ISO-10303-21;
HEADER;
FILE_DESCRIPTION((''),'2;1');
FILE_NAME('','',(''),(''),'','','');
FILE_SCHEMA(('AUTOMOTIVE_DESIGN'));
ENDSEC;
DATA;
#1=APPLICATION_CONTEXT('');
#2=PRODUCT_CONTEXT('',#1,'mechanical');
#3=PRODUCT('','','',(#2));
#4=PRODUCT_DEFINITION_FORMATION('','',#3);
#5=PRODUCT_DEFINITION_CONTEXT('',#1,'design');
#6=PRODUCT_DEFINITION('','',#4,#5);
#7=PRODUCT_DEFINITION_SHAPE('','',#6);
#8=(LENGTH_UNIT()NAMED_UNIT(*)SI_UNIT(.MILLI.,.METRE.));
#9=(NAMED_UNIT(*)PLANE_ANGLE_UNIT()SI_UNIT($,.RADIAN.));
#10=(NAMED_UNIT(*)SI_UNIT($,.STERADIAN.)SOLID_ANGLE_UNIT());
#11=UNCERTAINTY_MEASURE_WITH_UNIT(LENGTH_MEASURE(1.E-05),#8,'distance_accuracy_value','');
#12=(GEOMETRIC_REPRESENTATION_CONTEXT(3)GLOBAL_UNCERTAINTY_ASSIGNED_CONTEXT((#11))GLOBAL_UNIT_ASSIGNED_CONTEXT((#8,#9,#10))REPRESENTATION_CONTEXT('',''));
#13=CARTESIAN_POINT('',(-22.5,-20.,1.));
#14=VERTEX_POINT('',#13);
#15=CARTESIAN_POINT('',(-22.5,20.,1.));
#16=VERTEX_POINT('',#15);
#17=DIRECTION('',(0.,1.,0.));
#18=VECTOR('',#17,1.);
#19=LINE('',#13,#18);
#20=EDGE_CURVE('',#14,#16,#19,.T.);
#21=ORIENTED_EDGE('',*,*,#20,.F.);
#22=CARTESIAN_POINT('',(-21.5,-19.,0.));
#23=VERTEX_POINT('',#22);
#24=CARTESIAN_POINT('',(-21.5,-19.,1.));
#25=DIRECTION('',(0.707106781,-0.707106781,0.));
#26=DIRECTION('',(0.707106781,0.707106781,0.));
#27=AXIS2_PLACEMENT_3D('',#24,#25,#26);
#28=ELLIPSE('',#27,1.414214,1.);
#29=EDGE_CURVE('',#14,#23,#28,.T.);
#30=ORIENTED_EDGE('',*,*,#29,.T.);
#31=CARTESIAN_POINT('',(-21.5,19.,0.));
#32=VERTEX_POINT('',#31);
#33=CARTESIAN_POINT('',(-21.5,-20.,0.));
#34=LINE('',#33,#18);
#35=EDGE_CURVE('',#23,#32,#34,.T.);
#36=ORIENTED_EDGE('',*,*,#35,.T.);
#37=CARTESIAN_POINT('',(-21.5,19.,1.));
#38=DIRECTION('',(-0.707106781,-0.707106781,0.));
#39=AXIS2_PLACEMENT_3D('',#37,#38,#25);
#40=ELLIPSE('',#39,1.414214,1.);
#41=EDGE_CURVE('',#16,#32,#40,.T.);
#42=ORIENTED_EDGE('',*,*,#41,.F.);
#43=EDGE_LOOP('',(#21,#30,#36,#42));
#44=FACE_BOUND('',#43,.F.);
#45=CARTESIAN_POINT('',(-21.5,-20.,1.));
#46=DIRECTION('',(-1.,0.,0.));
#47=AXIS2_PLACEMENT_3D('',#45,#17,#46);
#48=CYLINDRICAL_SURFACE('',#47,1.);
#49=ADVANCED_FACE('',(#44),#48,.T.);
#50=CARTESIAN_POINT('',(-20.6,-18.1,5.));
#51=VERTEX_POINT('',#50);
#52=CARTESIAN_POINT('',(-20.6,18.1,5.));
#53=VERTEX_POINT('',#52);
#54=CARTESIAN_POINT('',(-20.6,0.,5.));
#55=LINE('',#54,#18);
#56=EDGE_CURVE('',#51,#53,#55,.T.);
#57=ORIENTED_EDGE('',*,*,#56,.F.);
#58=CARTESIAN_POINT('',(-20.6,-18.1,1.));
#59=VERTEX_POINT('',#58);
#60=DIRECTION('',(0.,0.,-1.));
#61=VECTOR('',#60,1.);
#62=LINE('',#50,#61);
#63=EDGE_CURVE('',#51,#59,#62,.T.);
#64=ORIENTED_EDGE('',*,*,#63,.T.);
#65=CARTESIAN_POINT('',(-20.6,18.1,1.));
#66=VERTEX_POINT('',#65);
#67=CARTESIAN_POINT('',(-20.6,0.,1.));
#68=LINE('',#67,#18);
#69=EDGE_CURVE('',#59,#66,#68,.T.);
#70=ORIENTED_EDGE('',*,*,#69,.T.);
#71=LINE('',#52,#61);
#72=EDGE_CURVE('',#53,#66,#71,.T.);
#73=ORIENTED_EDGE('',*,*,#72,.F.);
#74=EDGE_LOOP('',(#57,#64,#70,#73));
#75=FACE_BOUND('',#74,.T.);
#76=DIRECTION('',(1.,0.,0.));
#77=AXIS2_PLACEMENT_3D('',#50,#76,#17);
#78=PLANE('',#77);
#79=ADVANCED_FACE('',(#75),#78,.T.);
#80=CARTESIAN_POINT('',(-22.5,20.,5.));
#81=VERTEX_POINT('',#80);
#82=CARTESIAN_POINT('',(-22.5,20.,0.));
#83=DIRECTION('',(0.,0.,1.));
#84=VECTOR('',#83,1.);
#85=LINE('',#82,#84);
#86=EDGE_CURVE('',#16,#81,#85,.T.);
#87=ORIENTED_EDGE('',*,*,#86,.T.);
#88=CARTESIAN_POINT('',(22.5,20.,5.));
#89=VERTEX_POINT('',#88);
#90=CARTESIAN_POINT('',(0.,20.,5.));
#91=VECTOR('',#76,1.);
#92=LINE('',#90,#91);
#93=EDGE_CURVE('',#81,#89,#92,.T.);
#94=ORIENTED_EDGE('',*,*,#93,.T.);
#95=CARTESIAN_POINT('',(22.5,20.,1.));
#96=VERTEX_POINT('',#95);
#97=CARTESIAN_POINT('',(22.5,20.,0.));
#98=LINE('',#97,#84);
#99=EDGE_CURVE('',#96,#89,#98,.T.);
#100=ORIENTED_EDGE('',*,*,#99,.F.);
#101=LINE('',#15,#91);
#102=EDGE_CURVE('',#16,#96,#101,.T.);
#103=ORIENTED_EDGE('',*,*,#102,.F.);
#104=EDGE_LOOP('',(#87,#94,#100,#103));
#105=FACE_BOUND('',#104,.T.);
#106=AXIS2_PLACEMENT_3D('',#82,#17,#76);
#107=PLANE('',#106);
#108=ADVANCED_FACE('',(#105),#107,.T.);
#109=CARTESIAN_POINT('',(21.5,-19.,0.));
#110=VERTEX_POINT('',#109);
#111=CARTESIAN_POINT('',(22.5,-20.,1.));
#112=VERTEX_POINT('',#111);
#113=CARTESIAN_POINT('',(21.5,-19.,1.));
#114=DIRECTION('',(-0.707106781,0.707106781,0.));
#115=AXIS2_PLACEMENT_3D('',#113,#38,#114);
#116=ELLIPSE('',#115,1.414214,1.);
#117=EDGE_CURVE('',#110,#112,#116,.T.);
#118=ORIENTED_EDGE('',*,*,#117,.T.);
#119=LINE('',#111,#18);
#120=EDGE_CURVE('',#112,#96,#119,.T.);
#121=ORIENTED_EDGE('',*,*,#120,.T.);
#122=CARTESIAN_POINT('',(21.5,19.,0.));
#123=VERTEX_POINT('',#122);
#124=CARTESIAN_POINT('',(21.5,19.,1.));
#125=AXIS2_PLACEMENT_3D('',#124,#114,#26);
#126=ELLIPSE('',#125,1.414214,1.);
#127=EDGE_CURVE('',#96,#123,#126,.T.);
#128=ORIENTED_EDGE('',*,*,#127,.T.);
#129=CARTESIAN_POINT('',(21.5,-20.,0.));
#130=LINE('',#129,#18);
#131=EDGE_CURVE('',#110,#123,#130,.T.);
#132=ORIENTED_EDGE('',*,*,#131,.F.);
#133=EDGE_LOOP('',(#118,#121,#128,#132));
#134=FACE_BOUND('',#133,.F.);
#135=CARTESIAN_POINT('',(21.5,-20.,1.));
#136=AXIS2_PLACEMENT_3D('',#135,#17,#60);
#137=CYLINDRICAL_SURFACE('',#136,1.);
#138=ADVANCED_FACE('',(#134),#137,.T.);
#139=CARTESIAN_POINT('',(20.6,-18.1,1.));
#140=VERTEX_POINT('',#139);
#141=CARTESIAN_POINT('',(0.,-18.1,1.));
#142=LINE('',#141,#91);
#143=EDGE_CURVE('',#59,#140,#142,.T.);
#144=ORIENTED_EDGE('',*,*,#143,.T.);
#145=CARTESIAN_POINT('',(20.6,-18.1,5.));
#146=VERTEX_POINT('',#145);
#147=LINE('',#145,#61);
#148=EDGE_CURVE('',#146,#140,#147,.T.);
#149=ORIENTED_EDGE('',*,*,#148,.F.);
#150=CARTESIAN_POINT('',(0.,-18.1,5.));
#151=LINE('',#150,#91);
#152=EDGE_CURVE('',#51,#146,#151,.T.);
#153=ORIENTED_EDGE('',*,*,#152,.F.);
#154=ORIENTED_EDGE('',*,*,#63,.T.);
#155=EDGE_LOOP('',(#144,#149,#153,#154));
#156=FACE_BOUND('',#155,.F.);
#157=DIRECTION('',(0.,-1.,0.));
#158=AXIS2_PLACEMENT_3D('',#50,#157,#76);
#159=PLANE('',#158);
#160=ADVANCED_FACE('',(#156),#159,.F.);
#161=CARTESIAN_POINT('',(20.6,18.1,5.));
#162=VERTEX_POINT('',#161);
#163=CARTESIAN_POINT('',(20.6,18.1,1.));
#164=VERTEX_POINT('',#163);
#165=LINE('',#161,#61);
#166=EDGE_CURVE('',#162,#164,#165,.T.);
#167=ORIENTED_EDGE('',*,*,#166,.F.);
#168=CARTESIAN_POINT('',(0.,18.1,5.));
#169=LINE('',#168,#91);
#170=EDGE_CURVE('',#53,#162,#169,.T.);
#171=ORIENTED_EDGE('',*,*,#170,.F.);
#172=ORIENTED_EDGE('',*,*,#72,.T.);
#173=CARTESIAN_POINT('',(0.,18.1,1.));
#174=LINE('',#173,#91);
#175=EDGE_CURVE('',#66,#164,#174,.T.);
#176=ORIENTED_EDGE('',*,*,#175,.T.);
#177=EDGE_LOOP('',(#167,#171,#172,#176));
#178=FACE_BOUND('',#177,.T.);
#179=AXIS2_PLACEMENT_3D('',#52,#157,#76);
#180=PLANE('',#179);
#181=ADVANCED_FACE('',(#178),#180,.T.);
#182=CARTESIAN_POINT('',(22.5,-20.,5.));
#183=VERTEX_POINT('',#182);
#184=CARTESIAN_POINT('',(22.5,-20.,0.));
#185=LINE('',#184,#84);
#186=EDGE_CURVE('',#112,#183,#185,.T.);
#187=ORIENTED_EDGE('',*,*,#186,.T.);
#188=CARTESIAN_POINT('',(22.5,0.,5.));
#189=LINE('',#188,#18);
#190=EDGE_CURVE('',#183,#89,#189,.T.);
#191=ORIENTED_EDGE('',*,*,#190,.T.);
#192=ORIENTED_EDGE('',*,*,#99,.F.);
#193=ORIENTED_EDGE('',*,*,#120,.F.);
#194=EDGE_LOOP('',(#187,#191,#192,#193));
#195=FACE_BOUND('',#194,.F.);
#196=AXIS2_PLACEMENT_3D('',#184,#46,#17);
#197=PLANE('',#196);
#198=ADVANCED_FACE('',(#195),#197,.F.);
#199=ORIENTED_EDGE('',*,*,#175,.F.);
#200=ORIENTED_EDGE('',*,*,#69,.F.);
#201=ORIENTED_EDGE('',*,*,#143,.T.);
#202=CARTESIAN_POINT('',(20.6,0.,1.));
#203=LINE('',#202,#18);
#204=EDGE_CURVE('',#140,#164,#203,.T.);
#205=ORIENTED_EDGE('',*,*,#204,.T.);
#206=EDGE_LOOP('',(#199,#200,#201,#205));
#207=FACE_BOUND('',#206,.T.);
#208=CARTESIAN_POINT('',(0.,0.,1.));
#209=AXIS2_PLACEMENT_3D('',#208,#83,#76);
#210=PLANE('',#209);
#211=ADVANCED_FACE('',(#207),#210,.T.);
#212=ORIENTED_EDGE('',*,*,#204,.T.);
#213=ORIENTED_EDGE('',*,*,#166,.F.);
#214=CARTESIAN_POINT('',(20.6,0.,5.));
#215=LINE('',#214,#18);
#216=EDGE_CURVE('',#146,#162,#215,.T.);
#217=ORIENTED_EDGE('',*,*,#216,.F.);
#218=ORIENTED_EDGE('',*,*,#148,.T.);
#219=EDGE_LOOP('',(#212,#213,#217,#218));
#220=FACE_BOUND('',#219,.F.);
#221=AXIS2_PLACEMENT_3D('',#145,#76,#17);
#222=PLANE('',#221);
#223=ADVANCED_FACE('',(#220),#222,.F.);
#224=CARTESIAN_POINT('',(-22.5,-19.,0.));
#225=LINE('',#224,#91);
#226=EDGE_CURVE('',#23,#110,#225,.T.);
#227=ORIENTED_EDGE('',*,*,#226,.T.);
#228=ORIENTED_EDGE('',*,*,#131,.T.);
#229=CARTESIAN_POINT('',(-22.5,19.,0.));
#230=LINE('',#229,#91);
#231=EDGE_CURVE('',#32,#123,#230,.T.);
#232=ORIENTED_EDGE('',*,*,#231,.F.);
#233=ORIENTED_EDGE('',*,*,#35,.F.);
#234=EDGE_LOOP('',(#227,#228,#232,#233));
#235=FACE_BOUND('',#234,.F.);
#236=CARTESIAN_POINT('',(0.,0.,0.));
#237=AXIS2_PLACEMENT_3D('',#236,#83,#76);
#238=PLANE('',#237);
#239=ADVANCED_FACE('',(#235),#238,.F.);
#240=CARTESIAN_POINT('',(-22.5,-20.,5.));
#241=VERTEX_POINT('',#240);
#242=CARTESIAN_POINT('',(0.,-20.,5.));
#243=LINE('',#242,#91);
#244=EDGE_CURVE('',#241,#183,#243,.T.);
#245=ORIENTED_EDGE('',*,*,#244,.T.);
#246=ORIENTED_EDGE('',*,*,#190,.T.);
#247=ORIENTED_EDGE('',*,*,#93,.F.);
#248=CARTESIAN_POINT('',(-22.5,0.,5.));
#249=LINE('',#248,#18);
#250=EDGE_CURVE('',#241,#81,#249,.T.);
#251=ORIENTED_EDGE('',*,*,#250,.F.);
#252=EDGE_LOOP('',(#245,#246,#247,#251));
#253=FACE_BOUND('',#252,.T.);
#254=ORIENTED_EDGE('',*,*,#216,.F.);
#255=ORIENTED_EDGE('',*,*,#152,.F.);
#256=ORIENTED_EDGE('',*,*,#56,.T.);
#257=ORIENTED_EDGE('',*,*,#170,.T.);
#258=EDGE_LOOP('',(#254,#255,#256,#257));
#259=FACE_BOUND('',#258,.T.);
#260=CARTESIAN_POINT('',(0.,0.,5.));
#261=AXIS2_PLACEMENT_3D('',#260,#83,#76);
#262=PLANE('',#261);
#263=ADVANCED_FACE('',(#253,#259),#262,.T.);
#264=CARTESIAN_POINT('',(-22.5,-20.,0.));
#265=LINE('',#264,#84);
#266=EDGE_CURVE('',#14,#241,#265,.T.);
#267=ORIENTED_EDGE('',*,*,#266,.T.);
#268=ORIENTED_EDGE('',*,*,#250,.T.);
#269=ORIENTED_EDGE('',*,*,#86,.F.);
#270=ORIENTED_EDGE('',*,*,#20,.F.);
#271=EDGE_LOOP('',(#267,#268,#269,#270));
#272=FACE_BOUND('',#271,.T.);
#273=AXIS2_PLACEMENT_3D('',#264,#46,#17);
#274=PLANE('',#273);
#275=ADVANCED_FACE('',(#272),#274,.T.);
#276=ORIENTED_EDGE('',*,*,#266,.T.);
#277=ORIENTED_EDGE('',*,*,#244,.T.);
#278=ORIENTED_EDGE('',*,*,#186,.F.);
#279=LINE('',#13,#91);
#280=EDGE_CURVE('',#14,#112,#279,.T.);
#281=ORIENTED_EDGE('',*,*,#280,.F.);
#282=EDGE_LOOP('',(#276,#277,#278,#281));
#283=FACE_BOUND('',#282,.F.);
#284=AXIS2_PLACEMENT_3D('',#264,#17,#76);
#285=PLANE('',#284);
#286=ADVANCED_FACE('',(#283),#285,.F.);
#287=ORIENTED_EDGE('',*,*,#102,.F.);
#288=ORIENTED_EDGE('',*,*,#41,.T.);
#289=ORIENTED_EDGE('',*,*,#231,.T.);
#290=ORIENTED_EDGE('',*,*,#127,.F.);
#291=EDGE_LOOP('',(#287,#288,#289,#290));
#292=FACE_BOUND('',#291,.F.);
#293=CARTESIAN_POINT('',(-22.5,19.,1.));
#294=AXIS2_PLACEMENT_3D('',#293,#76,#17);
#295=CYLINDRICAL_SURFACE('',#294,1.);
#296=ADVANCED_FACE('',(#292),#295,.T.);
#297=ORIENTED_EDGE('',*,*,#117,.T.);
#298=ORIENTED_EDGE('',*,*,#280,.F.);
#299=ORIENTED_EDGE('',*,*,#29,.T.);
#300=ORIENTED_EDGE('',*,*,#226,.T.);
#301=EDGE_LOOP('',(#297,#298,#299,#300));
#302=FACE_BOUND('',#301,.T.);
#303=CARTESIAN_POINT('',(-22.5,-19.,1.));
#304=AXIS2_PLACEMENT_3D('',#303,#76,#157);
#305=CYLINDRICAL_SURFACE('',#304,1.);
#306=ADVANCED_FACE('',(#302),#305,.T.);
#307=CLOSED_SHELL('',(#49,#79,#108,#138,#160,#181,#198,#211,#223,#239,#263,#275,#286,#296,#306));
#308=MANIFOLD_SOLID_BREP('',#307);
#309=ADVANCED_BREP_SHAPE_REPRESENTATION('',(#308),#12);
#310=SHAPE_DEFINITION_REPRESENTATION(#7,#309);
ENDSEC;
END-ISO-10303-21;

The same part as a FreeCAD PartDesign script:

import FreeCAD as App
import Part
import Sketcher
Q = App.Units.Quantity


def edges_at(feature, points):
    """Names of the edges that pass closest to the given points."""
    edges = feature.Shape.Edges
    near = lambda p: min(range(len(edges)), key=lambda i: edges[i].distToShape(Part.Vertex(*p))[0])
    return sorted({f"Edge{near(p) + 1}" for p in points})

doc = App.newDocument("Part")
body = doc.addObject("PartDesign::Body", "Body")

# Sketch on XY plane
sketch1 = body.newObject("Sketcher::SketchObject", "Sketch")
sketch1.AttachmentSupport = (doc.getObject("XY_Plane"), [""])
sketch1.MapMode = "FlatFace"
sketch1.addGeometry([
    Part.LineSegment(App.Vector(-22.5, 20, 0), App.Vector(-22.5, -20, 0)),
    Part.LineSegment(App.Vector(-22.5, -20, 0), App.Vector(22.5, -20, 0)),
    Part.LineSegment(App.Vector(22.5, -20, 0), App.Vector(22.5, 20, 0)),
    Part.LineSegment(App.Vector(22.5, 20, 0), App.Vector(-22.5, 20, 0)),
], False)
sketch1.addConstraint([
    Sketcher.Constraint("Coincident", 0, 2, 1, 1),
    Sketcher.Constraint("Coincident", 1, 2, 2, 1),
    Sketcher.Constraint("Coincident", 2, 2, 3, 1),
    Sketcher.Constraint("Coincident", 3, 2, 0, 1),
    Sketcher.Constraint("Vertical", 0),
    Sketcher.Constraint("Horizontal", 1),
    Sketcher.Constraint("Vertical", 2),
    Sketcher.Constraint("Horizontal", 3),
    Sketcher.Constraint("Symmetric", 0, 2, 2, 2, -1, 1),
    Sketcher.Constraint("DistanceX", 1, 1, 1, 2, Q("45 mm")),
    Sketcher.Constraint("DistanceY", 0, 2, 0, 1, Q("40 mm")),
])
pad1 = body.newObject("PartDesign::Pad", "Pad")
pad1.Profile = sketch1
pad1.Length = 5

# Sketch on XY plane
sketch2 = body.newObject("Sketcher::SketchObject", "Sketch001")
sketch2.AttachmentSupport = (doc.getObject("XY_Plane"), [""])
sketch2.MapMode = "FlatFace"
sketch2.AttachmentOffset = App.Placement(App.Vector(0, 0, 5), App.Rotation())
sketch2.addGeometry([
    Part.LineSegment(App.Vector(-20.6, 18.1, 0), App.Vector(-20.6, -18.1, 0)),
    Part.LineSegment(App.Vector(-20.6, -18.1, 0), App.Vector(20.6, -18.1, 0)),
    Part.LineSegment(App.Vector(20.6, -18.1, 0), App.Vector(20.6, 18.1, 0)),
    Part.LineSegment(App.Vector(20.6, 18.1, 0), App.Vector(-20.6, 18.1, 0)),
], False)
sketch2.addConstraint([
    Sketcher.Constraint("Coincident", 0, 2, 1, 1),
    Sketcher.Constraint("Coincident", 1, 2, 2, 1),
    Sketcher.Constraint("Coincident", 2, 2, 3, 1),
    Sketcher.Constraint("Coincident", 3, 2, 0, 1),
    Sketcher.Constraint("Vertical", 0),
    Sketcher.Constraint("Horizontal", 1),
    Sketcher.Constraint("Vertical", 2),
    Sketcher.Constraint("Horizontal", 3),
    Sketcher.Constraint("Symmetric", 0, 2, 2, 2, -1, 1),
    Sketcher.Constraint("DistanceX", 1, 1, 1, 2, Q("41.2 mm")),
    Sketcher.Constraint("DistanceY", 0, 2, 0, 1, Q("36.2 mm")),
])
pocket1 = body.newObject("PartDesign::Pocket", "Pocket")
pocket1.Profile = sketch2
pocket1.Length = 4
doc.recompute()

fillet = body.newObject("PartDesign::Fillet", "Fillet")
fillet.Base = (pocket1, edges_at(pocket1, [
    (0, 20, 0),
    (22.5, 0, 0),
    (0, -20, 0),
    (-22.5, 0, 0),
]))
fillet.Radius = 1

doc.recompute()
